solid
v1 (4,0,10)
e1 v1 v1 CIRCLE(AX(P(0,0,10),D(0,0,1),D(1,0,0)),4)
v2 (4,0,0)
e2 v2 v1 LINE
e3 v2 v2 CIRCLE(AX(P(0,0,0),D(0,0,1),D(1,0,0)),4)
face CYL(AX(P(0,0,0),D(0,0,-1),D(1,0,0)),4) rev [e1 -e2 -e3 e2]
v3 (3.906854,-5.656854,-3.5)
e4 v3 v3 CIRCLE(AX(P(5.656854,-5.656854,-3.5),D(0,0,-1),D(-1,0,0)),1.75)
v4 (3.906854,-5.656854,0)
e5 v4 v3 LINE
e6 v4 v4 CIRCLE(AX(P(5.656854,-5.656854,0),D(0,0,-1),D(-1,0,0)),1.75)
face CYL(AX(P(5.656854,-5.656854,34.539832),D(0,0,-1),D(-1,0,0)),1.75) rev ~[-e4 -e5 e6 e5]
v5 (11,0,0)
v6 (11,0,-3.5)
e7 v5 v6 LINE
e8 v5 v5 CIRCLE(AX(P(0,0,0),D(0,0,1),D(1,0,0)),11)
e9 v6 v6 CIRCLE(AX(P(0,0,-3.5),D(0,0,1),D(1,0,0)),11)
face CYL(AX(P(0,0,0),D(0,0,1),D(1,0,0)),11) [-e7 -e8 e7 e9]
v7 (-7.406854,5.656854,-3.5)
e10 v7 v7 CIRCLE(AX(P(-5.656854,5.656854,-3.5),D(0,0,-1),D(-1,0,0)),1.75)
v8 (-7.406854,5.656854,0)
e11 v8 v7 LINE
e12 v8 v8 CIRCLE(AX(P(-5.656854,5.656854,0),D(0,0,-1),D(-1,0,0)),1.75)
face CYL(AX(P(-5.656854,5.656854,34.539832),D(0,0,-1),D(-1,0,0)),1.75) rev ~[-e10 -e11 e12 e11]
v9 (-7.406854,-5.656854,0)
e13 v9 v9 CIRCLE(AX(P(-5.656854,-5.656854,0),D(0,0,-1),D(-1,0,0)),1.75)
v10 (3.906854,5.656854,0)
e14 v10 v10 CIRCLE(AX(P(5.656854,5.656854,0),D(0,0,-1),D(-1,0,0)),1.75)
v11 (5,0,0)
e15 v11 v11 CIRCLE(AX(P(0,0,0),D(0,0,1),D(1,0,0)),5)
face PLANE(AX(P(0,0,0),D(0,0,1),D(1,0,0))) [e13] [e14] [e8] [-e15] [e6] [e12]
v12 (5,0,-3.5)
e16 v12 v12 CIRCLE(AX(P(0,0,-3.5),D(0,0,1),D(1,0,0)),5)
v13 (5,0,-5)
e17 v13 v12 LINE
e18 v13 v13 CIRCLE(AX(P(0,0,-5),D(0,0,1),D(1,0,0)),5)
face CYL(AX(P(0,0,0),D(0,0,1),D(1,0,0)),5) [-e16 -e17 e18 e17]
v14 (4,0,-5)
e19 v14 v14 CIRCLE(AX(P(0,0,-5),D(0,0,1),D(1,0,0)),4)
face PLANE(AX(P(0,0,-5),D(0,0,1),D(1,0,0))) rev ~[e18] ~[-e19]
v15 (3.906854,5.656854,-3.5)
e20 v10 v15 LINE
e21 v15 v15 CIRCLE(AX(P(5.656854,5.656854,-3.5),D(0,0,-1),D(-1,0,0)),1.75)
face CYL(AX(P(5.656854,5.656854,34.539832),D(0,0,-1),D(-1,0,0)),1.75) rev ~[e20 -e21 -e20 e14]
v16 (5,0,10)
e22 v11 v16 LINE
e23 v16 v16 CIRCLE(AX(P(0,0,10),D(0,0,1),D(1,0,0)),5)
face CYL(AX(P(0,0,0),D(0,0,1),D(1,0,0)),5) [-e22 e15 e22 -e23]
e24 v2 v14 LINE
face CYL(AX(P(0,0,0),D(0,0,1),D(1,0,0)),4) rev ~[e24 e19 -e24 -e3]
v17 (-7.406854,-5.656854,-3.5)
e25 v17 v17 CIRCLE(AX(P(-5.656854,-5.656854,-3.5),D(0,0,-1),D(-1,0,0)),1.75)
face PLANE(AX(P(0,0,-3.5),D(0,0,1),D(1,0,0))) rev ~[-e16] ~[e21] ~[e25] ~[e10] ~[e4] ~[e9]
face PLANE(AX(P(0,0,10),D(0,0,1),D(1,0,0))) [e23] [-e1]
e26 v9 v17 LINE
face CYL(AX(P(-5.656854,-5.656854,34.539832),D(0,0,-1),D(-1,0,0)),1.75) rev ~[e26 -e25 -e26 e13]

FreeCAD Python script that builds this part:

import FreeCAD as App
import Part
import Sketcher

V = App.Vector
Q = App.Units.Quantity

doc = App.newDocument("Part")
body = doc.addObject("PartDesign::Body", "Body")

# Sketch on XY plane
sketch1 = body.newObject("Sketcher::SketchObject", "Sketch")
sketch1.AttachmentSupport = (doc.getObject("XY_Plane"), [""])
sketch1.MapMode = "FlatFace"
sketch1.addGeometry(Part.Circle(V(0, 0, 0), V(0, 0, 1), 5), False)
sketch1.addGeometry(Part.Circle(V(0, 0, 0), V(0, 0, 1), 4), False)
sketch1.addConstraint(Sketcher.Constraint("Coincident", 0, 3, -1, 1))
sketch1.addConstraint(Sketcher.Constraint("Coincident", 1, 3, -1, 1))
sketch1.addConstraint(Sketcher.Constraint("Diameter", 0, Q("10 mm")))
sketch1.addConstraint(Sketcher.Constraint("Diameter", 1, Q("8 mm")))
pad1 = body.newObject("PartDesign::Pad", "Pad")
pad1.Profile = sketch1
pad1.Length = 10

# Sketch on XY plane
sketch2 = body.newObject("Sketcher::SketchObject", "Sketch001")
sketch2.AttachmentSupport = (doc.getObject("XY_Plane"), [""])
sketch2.MapMode = "FlatFace"
sketch2.addGeometry(Part.Circle(V(0, 0, 0), V(0, 0, 1), 5), False)
sketch2.addGeometry(Part.Circle(V(0, 0, 0), V(0, 0, 1), 4), False)
sketch2.addConstraint(Sketcher.Constraint("Coincident", 0, 3, -1, 1))
sketch2.addConstraint(Sketcher.Constraint("Coincident", 1, 3, -1, 1))
sketch2.addConstraint(Sketcher.Constraint("Diameter", 0, Q("10 mm")))
sketch2.addConstraint(Sketcher.Constraint("Diameter", 1, Q("8 mm")))
pad2 = body.newObject("PartDesign::Pad", "Pad001")
pad2.Profile = sketch2
pad2.Length = 5
pad2.Reversed = True

# Sketch on XY plane
sketch3 = body.newObject("Sketcher::SketchObject", "Sketch002")
sketch3.AttachmentSupport = (doc.getObject("XY_Plane"), [""])
sketch3.MapMode = "FlatFace"
sketch3.addGeometry(Part.Circle(V(0, 0, 0), V(0, 0, 1), 11), False)
sketch3.addGeometry(Part.Circle(V(0, 0, 0), V(0, 0, 1), 5), False)
sketch3.addConstraint(Sketcher.Constraint("Coincident", 0, 3, -1, 1))
sketch3.addConstraint(Sketcher.Constraint("Coincident", 1, 3, -1, 1))
sketch3.addConstraint(Sketcher.Constraint("Diameter", 0, Q("22 mm")))
sketch3.addConstraint(Sketcher.Constraint("Diameter", 1, Q("10 mm")))
pad3 = body.newObject("PartDesign::Pad", "Pad002")
pad3.Profile = sketch3
pad3.Length = 3.5
pad3.Reversed = True

# Sketch on XY plane
sketch4 = body.newObject("Sketcher::SketchObject", "Sketch003")
sketch4.AttachmentSupport = (doc.getObject("XY_Plane"), [""])
sketch4.MapMode = "FlatFace"
sketch4.addGeometry(Part.Circle(V(-5.7, 5.7, 0), V(0, 0, 1), 1.8), False)
sketch4.addGeometry(Part.Circle(V(5.7, 5.7, 0), V(0, 0, 1), 1.8), False)
sketch4.addGeometry(Part.Circle(V(5.7, -5.7, 0), V(0, 0, 1), 1.8), False)
sketch4.addGeometry(Part.Circle(V(-5.7, -5.7, 0), V(0, 0, 1), 1.8), False)
sketch4.addConstraint(Sketcher.Constraint("Equal", 0, 1))
sketch4.addConstraint(Sketcher.Constraint("Equal", 1, 2))
sketch4.addConstraint(Sketcher.Constraint("Equal", 2, 3))
sketch4.addConstraint(Sketcher.Constraint("Symmetric", 0, 3, 2, 3, -1, 1))
sketch4.addConstraint(Sketcher.Constraint("Symmetric", 1, 3, 3, 3, -1, 1))
sketch4.addConstraint(Sketcher.Constraint("Symmetric", 0, 3, 1, 3, -2))
sketch4.addConstraint(Sketcher.Constraint("Diameter", 0, Q("3.5 mm")))
sketch4.addConstraint(Sketcher.Constraint("DistanceX", 0, 3, -1, 1, Q("5.656854 mm")))
sketch4.addConstraint(Sketcher.Constraint("DistanceY", -1, 1, 0, 3, Q("5.656854 mm")))
doc.recompute()
hole = body.newObject("PartDesign::Hole", "Hole")
hole.Profile = sketch4
hole.ThreadType = "None"
hole.Diameter = 3.5
hole.DepthType = "ThroughAll"

doc.recompute()
